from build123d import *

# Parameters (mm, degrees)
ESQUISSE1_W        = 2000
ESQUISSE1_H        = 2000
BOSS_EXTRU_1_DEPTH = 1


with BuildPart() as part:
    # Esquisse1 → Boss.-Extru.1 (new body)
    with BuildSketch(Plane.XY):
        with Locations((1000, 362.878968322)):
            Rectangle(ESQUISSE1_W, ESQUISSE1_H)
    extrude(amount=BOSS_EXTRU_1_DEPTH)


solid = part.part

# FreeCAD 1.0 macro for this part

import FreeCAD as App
import Part
import Sketcher
Q = App.Units.Quantity


def add_polygon(sketch, points):
    """Adds a closed chain of lines whose ends are joined by coincident constraints."""
    first, n = sketch.GeometryCount, len(points)
    for a, b in zip(points, points[1:] + points[:1]):
        sketch.addGeometry(Part.LineSegment(App.Vector(*a, 0), App.Vector(*b, 0)), False)
    for i in range(n):
        sketch.addConstraint(Sketcher.Constraint("Coincident", first + i, 2, first + (i + 1) % n, 1))

doc = App.newDocument("Part")
body = doc.addObject("PartDesign::Body", "Body")

# Sketch on XY plane
sketch1 = body.newObject("Sketcher::SketchObject", "Sketch")
sketch1.AttachmentSupport = (doc.getObject("XY_Plane"), [""])
sketch1.MapMode = "FlatFace"
add_polygon(sketch1, [(0, 1363), (0, -637), (2000, -637), (2000, 1363)])  # lines 0-3
sketch1.addConstraint(Sketcher.Constraint("Vertical", 0))
sketch1.addConstraint(Sketcher.Constraint("Horizontal", 1))
sketch1.addConstraint(Sketcher.Constraint("Vertical", 2))
sketch1.addConstraint(Sketcher.Constraint("Horizontal", 3))
sketch1.addConstraint(Sketcher.Constraint("PointOnObject", 0, 2, -2))
sketch1.addConstraint(Sketcher.Constraint("Equal", 3, 0))
sketch1.addConstraint(Sketcher.Constraint("DistanceX", 1, 1, 1, 2, Q("2000 mm")))
sketch1.addConstraint(Sketcher.Constraint("DistanceY", 0, 2, -1, 1, Q("637.121032 mm")))
pad1 = body.newObject("PartDesign::Pad", "Pad")
pad1.Profile = sketch1
pad1.Length = 1

doc.recompute()
